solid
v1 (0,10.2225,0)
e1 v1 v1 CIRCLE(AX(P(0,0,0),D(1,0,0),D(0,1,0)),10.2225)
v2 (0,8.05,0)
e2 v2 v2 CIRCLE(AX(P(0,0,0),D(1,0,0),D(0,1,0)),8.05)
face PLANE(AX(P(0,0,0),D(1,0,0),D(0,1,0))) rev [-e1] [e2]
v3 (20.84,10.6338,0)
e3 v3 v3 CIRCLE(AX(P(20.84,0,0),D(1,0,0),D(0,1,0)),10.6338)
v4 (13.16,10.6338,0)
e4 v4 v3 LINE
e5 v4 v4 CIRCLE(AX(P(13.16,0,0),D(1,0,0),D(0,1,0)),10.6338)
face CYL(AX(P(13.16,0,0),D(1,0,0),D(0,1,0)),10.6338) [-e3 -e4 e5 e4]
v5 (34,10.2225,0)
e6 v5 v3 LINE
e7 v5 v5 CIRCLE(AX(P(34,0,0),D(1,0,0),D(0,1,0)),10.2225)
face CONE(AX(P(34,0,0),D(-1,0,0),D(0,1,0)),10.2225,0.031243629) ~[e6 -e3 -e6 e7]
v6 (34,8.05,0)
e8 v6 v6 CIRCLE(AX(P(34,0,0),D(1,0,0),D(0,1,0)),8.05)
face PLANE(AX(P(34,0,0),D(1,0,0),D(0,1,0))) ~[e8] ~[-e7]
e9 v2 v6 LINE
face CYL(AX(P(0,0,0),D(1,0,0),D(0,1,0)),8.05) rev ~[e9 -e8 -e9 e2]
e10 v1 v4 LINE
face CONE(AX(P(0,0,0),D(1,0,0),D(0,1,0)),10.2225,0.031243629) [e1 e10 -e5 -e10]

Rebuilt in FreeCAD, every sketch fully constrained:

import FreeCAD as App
import Part
import Sketcher
Q = App.Units.Quantity


def add_polygon(sketch, points):
    """Adds a closed chain of lines whose ends are joined by coincident constraints."""
    first, n = sketch.GeometryCount, len(points)
    for a, b in zip(points, points[1:] + points[:1]):
        sketch.addGeometry(Part.LineSegment(App.Vector(*a, 0), App.Vector(*b, 0)), False)
    for i in range(n):
        sketch.addConstraint(Sketcher.Constraint("Coincident", first + i, 2, first + (i + 1) % n, 1))

doc = App.newDocument("Part")
body = doc.addObject("PartDesign::Body", "Body")

# Sketch on XY plane
sketch1 = body.newObject("Sketcher::SketchObject", "Sketch")
sketch1.AttachmentSupport = (doc.getObject("XY_Plane"), [""])
sketch1.MapMode = "FlatFace"
add_polygon(sketch1, [(0, 8.05), (34, 8.05), (34, 10.2225), (20.84, 10.6338), (13.16, 10.6338), (0, 10.2225)])  # lines 0-5
sketch1.addConstraint([
    Sketcher.Constraint("Horizontal", 0),
    Sketcher.Constraint("Vertical", 1),
    Sketcher.Constraint("Horizontal", 3),
    Sketcher.Constraint("Vertical", 5),
    Sketcher.Constraint("PointOnObject", 4, 2, -2),
    Sketcher.Constraint("Horizontal", 1, 2, 4, 2),
    Sketcher.Constraint("Equal", 2, 4),
    Sketcher.Constraint("DistanceX", 0, 1, 0, 2, Q("34 mm")),
    Sketcher.Constraint("DistanceX", -1, 1, 3, 2, Q("13.16 mm")),
    Sketcher.Constraint("Angle", 2, Q("178.2099 deg")),
    Sketcher.Constraint("DistanceY", -1, 1, 0, 2, Q("8.05 mm")),
    Sketcher.Constraint("DistanceY", 1, 1, 1, 2, Q("2.1725 mm")),
])
revolution = body.newObject("PartDesign::Revolution", "Revolution")
revolution.Profile = sketch1
revolution.ReferenceAxis = (sketch1, ["H_Axis"])
revolution.Angle = 360

doc.recompute()
